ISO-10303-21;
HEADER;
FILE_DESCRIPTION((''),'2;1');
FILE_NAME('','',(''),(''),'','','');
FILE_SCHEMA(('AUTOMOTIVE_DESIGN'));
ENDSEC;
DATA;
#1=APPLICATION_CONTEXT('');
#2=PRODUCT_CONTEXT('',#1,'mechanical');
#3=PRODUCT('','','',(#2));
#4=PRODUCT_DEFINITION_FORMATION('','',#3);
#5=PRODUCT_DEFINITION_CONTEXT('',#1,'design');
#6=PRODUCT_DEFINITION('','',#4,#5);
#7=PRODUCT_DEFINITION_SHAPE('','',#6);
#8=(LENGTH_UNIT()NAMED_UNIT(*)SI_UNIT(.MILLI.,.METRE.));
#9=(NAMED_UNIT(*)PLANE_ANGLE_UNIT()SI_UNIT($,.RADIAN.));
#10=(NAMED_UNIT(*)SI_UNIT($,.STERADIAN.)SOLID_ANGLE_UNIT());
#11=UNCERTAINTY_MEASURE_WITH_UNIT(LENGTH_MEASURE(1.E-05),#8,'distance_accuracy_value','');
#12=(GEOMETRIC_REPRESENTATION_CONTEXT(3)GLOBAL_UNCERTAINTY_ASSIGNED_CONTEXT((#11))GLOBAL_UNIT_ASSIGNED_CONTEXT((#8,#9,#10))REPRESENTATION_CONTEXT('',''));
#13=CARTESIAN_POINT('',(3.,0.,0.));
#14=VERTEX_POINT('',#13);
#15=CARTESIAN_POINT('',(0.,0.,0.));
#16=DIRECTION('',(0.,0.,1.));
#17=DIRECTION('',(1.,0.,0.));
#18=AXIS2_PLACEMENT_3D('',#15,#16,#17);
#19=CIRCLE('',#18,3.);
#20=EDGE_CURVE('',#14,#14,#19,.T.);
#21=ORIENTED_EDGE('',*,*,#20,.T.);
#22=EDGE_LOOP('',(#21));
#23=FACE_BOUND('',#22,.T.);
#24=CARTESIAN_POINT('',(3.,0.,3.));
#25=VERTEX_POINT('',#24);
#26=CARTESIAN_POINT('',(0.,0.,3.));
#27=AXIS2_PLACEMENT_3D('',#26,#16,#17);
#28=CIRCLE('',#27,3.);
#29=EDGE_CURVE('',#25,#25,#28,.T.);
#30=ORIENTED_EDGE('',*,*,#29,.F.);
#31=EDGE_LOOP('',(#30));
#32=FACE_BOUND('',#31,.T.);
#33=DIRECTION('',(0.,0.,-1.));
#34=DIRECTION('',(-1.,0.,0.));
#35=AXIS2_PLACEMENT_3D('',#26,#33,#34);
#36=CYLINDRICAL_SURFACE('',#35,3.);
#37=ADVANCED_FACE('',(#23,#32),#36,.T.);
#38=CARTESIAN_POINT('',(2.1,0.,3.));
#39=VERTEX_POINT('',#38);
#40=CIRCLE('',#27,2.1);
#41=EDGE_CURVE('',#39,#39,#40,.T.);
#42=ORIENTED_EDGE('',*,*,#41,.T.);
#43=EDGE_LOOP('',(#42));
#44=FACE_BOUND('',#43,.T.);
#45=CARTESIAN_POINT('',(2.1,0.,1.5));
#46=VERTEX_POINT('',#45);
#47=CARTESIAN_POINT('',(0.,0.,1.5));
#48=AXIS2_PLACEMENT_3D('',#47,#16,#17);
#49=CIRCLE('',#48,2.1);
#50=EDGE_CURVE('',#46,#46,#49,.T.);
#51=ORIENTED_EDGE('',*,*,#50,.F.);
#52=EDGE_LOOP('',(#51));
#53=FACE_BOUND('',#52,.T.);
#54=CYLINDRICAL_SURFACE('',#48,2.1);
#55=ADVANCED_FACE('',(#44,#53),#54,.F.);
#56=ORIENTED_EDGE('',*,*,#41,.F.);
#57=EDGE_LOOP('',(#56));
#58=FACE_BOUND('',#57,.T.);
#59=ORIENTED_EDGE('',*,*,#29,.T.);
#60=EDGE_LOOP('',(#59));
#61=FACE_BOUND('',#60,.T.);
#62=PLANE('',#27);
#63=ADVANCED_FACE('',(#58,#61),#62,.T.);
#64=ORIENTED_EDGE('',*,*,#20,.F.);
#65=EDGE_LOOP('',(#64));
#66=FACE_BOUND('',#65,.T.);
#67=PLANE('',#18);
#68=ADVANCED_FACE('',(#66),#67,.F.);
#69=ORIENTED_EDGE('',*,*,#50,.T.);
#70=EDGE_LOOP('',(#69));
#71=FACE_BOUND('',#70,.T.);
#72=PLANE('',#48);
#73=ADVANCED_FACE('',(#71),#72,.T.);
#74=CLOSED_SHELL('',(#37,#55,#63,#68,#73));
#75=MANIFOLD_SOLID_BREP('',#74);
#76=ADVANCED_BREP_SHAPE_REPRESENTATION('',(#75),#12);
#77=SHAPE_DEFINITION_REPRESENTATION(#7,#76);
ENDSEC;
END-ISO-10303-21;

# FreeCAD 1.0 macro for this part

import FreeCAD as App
import Part
import Sketcher

V = App.Vector
Q = App.Units.Quantity

doc = App.newDocument("Part")
body = doc.addObject("PartDesign::Body", "Body")

sketch1 = doc.addObject("Sketcher::SketchObject", "Sketch")
body.addObject(sketch1)
sketch1.AttachmentSupport = (doc.XY_Plane, [""])
sketch1.MapMode = "FlatFace"
sketch1.addGeometry(Part.Circle(V(0, 0, 0), V(0, 0, 1), 3), False)
sketch1.addConstraint(Sketcher.Constraint("Coincident", 0, 3, -1, 1))
sketch1.addConstraint(Sketcher.Constraint("Diameter", 0, Q("6 mm")))
pad1 = doc.addObject("PartDesign::Pad", "Pad")
body.addObject(pad1)
pad1.Profile = sketch1
pad1.Length = 3

sketch2 = doc.addObject("Sketcher::SketchObject", "Sketch001")
body.addObject(sketch2)
sketch2.AttachmentSupport = (doc.XY_Plane, [""])
sketch2.MapMode = "FlatFace"
sketch2.AttachmentOffset = App.Placement(V(0, 0, 3), App.Rotation())
sketch2.addGeometry(Part.Circle(V(0, 0, 0), V(0, 0, 1), 2.1), False)
sketch2.addConstraint(Sketcher.Constraint("Coincident", 0, 3, -1, 1))
sketch2.addConstraint(Sketcher.Constraint("Diameter", 0, Q("4.2 mm")))
pocket1 = doc.addObject("PartDesign::Pocket", "Pocket")
body.addObject(pocket1)
pocket1.Profile = sketch2
pocket1.Length = 1.5

doc.recompute()
